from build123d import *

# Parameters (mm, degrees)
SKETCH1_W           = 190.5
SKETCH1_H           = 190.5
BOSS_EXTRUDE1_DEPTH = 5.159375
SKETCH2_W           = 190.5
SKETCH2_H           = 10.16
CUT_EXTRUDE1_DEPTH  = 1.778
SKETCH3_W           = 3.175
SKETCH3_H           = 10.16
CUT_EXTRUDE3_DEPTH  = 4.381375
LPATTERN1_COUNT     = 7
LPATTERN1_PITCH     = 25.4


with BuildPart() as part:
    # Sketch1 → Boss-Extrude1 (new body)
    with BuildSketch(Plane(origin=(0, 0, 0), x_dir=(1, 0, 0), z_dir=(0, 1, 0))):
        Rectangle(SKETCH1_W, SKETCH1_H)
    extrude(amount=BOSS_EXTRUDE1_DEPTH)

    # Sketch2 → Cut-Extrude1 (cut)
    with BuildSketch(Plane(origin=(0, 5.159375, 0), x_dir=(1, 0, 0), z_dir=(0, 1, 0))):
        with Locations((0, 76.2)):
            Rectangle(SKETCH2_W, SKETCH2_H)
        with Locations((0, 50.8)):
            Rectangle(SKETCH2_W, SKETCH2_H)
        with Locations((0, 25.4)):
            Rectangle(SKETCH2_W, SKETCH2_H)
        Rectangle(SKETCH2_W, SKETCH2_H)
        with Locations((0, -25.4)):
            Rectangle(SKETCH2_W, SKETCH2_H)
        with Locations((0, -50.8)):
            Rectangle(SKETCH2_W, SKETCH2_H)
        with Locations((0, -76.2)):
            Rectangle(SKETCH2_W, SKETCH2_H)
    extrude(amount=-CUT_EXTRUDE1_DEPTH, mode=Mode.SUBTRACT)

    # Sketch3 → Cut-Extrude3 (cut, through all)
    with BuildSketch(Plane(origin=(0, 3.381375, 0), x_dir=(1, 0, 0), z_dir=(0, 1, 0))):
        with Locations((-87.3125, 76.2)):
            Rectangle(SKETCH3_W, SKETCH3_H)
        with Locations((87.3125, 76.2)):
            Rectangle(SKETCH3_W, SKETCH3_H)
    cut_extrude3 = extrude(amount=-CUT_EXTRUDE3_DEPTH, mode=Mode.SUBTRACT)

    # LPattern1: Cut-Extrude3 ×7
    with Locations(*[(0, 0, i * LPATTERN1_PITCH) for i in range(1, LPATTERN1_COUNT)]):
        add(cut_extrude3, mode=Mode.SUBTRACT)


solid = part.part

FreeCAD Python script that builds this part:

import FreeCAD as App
import Part
import Sketcher
Q = App.Units.Quantity

doc = App.newDocument("Part")
body = doc.addObject("PartDesign::Body", "Body")

sketch1 = doc.addObject("Sketcher::SketchObject", "Sketch")
body.addObject(sketch1)
sketch1.AttachmentSupport = (doc.XZ_Plane, [""])
sketch1.MapMode = "FlatFace"
sketch1.addGeometry([
    Part.LineSegment(App.Vector(-95, -95, 0), App.Vector(-95, 95, 0)),
    Part.LineSegment(App.Vector(-95, 95, 0), App.Vector(95, 95, 0)),
    Part.LineSegment(App.Vector(95, 95, 0), App.Vector(95, -95, 0)),
    Part.LineSegment(App.Vector(95, -95, 0), App.Vector(-95, -95, 0)),
], False)
sketch1.addConstraint([
    Sketcher.Constraint("Coincident", 0, 2, 1, 1),
    Sketcher.Constraint("Coincident", 1, 2, 2, 1),
    Sketcher.Constraint("Coincident", 2, 2, 3, 1),
    Sketcher.Constraint("Coincident", 3, 2, 0, 1),
    Sketcher.Constraint("Vertical", 0),
    Sketcher.Constraint("Horizontal", 1),
    Sketcher.Constraint("Vertical", 2),
    Sketcher.Constraint("Horizontal", 3),
    Sketcher.Constraint("Symmetric", 0, 2, 2, 2, -1, 1),
    Sketcher.Constraint("Equal", 3, 0),
    Sketcher.Constraint("DistanceX", 1, 1, 1, 2, Q("7.5 in")),
])
pad1 = doc.addObject("PartDesign::Pad", "Pad")
body.addObject(pad1)
pad1.Profile = sketch1
pad1.Length = Q("0.203125 in")
pad1.Reversed = True

sketch2 = doc.addObject("Sketcher::SketchObject", "Sketch001")
body.addObject(sketch2)
sketch2.AttachmentSupport = (doc.XZ_Plane, [""])
sketch2.MapMode = "FlatFace"
sketch2.AttachmentOffset = App.Placement(App.Vector(0, 0, -0.203125 * 25.4), App.Rotation())
sketch2.addGeometry([
    Part.LineSegment(App.Vector(-95, -81, 0), App.Vector(-95, -71, 0)),
    Part.LineSegment(App.Vector(-95, -71, 0), App.Vector(95, -71, 0)),
    Part.LineSegment(App.Vector(95, -71, 0), App.Vector(95, -81, 0)),
    Part.LineSegment(App.Vector(95, -81, 0), App.Vector(-95, -81, 0)),
    Part.LineSegment(App.Vector(-95, -56, 0), App.Vector(-95, -46, 0)),
    Part.LineSegment(App.Vector(-95, -46, 0), App.Vector(95, -46, 0)),
    Part.LineSegment(App.Vector(95, -46, 0), App.Vector(95, -56, 0)),
    Part.LineSegment(App.Vector(95, -56, 0), App.Vector(-95, -56, 0)),
    Part.LineSegment(App.Vector(-95, -30, 0), App.Vector(-95, -20, 0)),
    Part.LineSegment(App.Vector(-95, -20, 0), App.Vector(95, -20, 0)),
    Part.LineSegment(App.Vector(95, -20, 0), App.Vector(95, -30, 0)),
    Part.LineSegment(App.Vector(95, -30, 0), App.Vector(-95, -30, 0)),
    Part.LineSegment(App.Vector(-95, -5, 0), App.Vector(-95, 5, 0)),
    Part.LineSegment(App.Vector(-95, 5, 0), App.Vector(95, 5, 0)),
    Part.LineSegment(App.Vector(95, 5, 0), App.Vector(95, -5, 0)),
    Part.LineSegment(App.Vector(95, -5, 0), App.Vector(-95, -5, 0)),
    Part.LineSegment(App.Vector(-95, 20, 0), App.Vector(-95, 30, 0)),
    Part.LineSegment(App.Vector(-95, 30, 0), App.Vector(95, 30, 0)),
    Part.LineSegment(App.Vector(95, 30, 0), App.Vector(95, 20, 0)),
    Part.LineSegment(App.Vector(95, 20, 0), App.Vector(-95, 20, 0)),
    Part.LineSegment(App.Vector(-95, 46, 0), App.Vector(-95, 56, 0)),
    Part.LineSegment(App.Vector(-95, 56, 0), App.Vector(95, 56, 0)),
    Part.LineSegment(App.Vector(95, 56, 0), App.Vector(95, 46, 0)),
    Part.LineSegment(App.Vector(95, 46, 0), App.Vector(-95, 46, 0)),
    Part.LineSegment(App.Vector(-95, 71, 0), App.Vector(-95, 81, 0)),
    Part.LineSegment(App.Vector(-95, 81, 0), App.Vector(95, 81, 0)),
    Part.LineSegment(App.Vector(95, 81, 0), App.Vector(95, 71, 0)),
    Part.LineSegment(App.Vector(95, 71, 0), App.Vector(-95, 71, 0)),
], False)
sketch2.addConstraint([
    Sketcher.Constraint("Coincident", 0, 2, 1, 1),
    Sketcher.Constraint("Coincident", 1, 2, 2, 1),
    Sketcher.Constraint("Coincident", 2, 2, 3, 1),
    Sketcher.Constraint("Coincident", 3, 2, 0, 1),
    Sketcher.Constraint("Coincident", 4, 2, 5, 1),
    Sketcher.Constraint("Coincident", 5, 2, 6, 1),
    Sketcher.Constraint("Coincident", 6, 2, 7, 1),
    Sketcher.Constraint("Coincident", 7, 2, 4, 1),
    Sketcher.Constraint("Coincident", 8, 2, 9, 1),
    Sketcher.Constraint("Coincident", 9, 2, 10, 1),
    Sketcher.Constraint("Coincident", 10, 2, 11, 1),
    Sketcher.Constraint("Coincident", 11, 2, 8, 1),
    Sketcher.Constraint("Coincident", 12, 2, 13, 1),
    Sketcher.Constraint("Coincident", 13, 2, 14, 1),
    Sketcher.Constraint("Coincident", 14, 2, 15, 1),
    Sketcher.Constraint("Coincident", 15, 2, 12, 1),
    Sketcher.Constraint("Coincident", 16, 2, 17, 1),
    Sketcher.Constraint("Coincident", 17, 2, 18, 1),
    Sketcher.Constraint("Coincident", 18, 2, 19, 1),
    Sketcher.Constraint("Coincident", 19, 2, 16, 1),
    Sketcher.Constraint("Coincident", 20, 2, 21, 1),
    Sketcher.Constraint("Coincident", 21, 2, 22, 1),
    Sketcher.Constraint("Coincident", 22, 2, 23, 1),
    Sketcher.Constraint("Coincident", 23, 2, 20, 1),
    Sketcher.Constraint("Coincident", 24, 2, 25, 1),
    Sketcher.Constraint("Coincident", 25, 2, 26, 1),
    Sketcher.Constraint("Coincident", 26, 2, 27, 1),
    Sketcher.Constraint("Coincident", 27, 2, 24, 1),
    Sketcher.Constraint("Vertical", 0),
    Sketcher.Constraint("Horizontal", 1),
    Sketcher.Constraint("Vertical", 2),
    Sketcher.Constraint("Horizontal", 3),
    Sketcher.Constraint("Vertical", 4),
    Sketcher.Constraint("Horizontal", 5),
    Sketcher.Constraint("Vertical", 6),
    Sketcher.Constraint("Horizontal", 7),
    Sketcher.Constraint("Vertical", 8),
    Sketcher.Constraint("Horizontal", 9),
    Sketcher.Constraint("Vertical", 10),
    Sketcher.Constraint("Horizontal", 11),
    Sketcher.Constraint("Vertical", 12),
    Sketcher.Constraint("Horizontal", 13),
    Sketcher.Constraint("Vertical", 14),
    Sketcher.Constraint("Horizontal", 15),
    Sketcher.Constraint("Vertical", 16),
    Sketcher.Constraint("Horizontal", 17),
    Sketcher.Constraint("Vertical", 18),
    Sketcher.Constraint("Horizontal", 19),
    Sketcher.Constraint("Vertical", 20),
    Sketcher.Constraint("Horizontal", 21),
    Sketcher.Constraint("Vertical", 22),
    Sketcher.Constraint("Horizontal", 23),
    Sketcher.Constraint("Vertical", 24),
    Sketcher.Constraint("Horizontal", 25),
    Sketcher.Constraint("Vertical", 26),
    Sketcher.Constraint("Horizontal", 27),
    Sketcher.Constraint("Symmetric", 12, 2, 14, 2, -1, 1),
    Sketcher.Constraint("Symmetric", 10, 2, 16, 2, -1, 1),
    Sketcher.Constraint("Symmetric", 8, 2, 18, 2, -1, 1),
    Sketcher.Constraint("Symmetric", 6, 2, 20, 2, -1, 1),
    Sketcher.Constraint("Symmetric", 4, 2, 22, 2, -1, 1),
    Sketcher.Constraint("Symmetric", 2, 2, 24, 2, -1, 1),
    Sketcher.Constraint("Symmetric", 0, 2, 26, 2, -1, 1),
    Sketcher.Constraint("Vertical", 3, 2, 4, 2),
    Sketcher.Constraint("Vertical", 2, 2, 5, 2),
    Sketcher.Constraint("Vertical", 7, 2, 8, 2),
    Sketcher.Constraint("Vertical", 6, 2, 9, 2),
    Sketcher.Constraint("Vertical", 11, 2, 12, 2),
    Sketcher.Constraint("Vertical", 10, 2, 13, 2),
    Sketcher.Constraint("Equal", 2, 4),
    Sketcher.Constraint("Equal", 6, 8),
    Sketcher.Constraint("Equal", 10, 12),
    Sketcher.Constraint("DistanceX", 1, 1, 1, 2, Q("7.5 in")),
    Sketcher.Constraint("DistanceY", 0, 1, 0, 2, Q("0.4 in")),
    Sketcher.Constraint("DistanceY", 0, 2, 4, 2, Q("1 in")),
    Sketcher.Constraint("DistanceY", 4, 2, 8, 2, Q("1 in")),
    Sketcher.Constraint("DistanceY", 8, 2, 12, 2, Q("1 in")),
])
pocket1 = doc.addObject("PartDesign::Pocket", "Pocket")
body.addObject(pocket1)
pocket1.Profile = sketch2
pocket1.Length = Q("0.07 in")
pocket1.Reversed = True

sketch3 = doc.addObject("Sketcher::SketchObject", "Sketch002")
body.addObject(sketch3)
sketch3.AttachmentSupport = (doc.XZ_Plane, [""])
sketch3.MapMode = "FlatFace"
sketch3.AttachmentOffset = App.Placement(App.Vector(0, 0, -3.381375), App.Rotation())
sketch3.addGeometry([
    Part.LineSegment(App.Vector(-88.9, -81.3, 0), App.Vector(-88.9, -71.1, 0)),
    Part.LineSegment(App.Vector(-88.9, -71.1, 0), App.Vector(-85.7, -71.1, 0)),
    Part.LineSegment(App.Vector(-85.7, -71.1, 0), App.Vector(-85.7, -81.3, 0)),
    Part.LineSegment(App.Vector(-85.7, -81.3, 0), App.Vector(-88.9, -81.3, 0)),
    Part.LineSegment(App.Vector(85.7, -81.3, 0), App.Vector(85.7, -71.1, 0)),
    Part.LineSegment(App.Vector(85.7, -71.1, 0), App.Vector(88.9, -71.1, 0)),
    Part.LineSegment(App.Vector(88.9, -71.1, 0), App.Vector(88.9, -81.3, 0)),
    Part.LineSegment(App.Vector(88.9, -81.3, 0), App.Vector(85.7, -81.3, 0)),
], False)
sketch3.addConstraint([
    Sketcher.Constraint("Coincident", 0, 2, 1, 1),
    Sketcher.Constraint("Coincident", 1, 2, 2, 1),
    Sketcher.Constraint("Coincident", 2, 2, 3, 1),
    Sketcher.Constraint("Coincident", 3, 2, 0, 1),
    Sketcher.Constraint("Coincident", 4, 2, 5, 1),
    Sketcher.Constraint("Coincident", 5, 2, 6, 1),
    Sketcher.Constraint("Coincident", 6, 2, 7, 1),
    Sketcher.Constraint("Coincident", 7, 2, 4, 1),
    Sketcher.Constraint("Vertical", 0),
    Sketcher.Constraint("Horizontal", 1),
    Sketcher.Constraint("Vertical", 2),
    Sketcher.Constraint("Horizontal", 3),
    Sketcher.Constraint("Vertical", 4),
    Sketcher.Constraint("Horizontal", 5),
    Sketcher.Constraint("Vertical", 6),
    Sketcher.Constraint("Horizontal", 7),
    Sketcher.Constraint("Symmetric", 1, 2, 4, 2, -2),
    Sketcher.Constraint("Symmetric", 3, 2, 6, 2, -2),
    Sketcher.Constraint("DistanceY", 0, 1, 0, 2, Q("0.4 in")),
    Sketcher.Constraint("DistanceX", 0, 2, 5, 2, Q("7 in")),
    Sketcher.Constraint("DistanceY", 0, 2, -1, 1, Q("2.8 in")),
    Sketcher.Constraint("DistanceX", 1, 1, 1, 2, Q("0.125 in")),
])
pocket2 = doc.addObject("PartDesign::Pocket", "Pocket001")
body.addObject(pocket2)
pocket2.Profile = sketch3
pocket2.Type = "ThroughAll"
pocket2.Reversed = True
doc.recompute()

linearpattern = doc.addObject("PartDesign::LinearPattern", "LinearPattern")
body.addObject(linearpattern)
linearpattern.Originals = [pocket2]
linearpattern.Direction = (doc.Z_Axis, [""])
linearpattern.Mode = "offset"
linearpattern.Offset = Q("1 in")
linearpattern.Occurrences = 7
body.Tip = linearpattern

doc.recompute()
